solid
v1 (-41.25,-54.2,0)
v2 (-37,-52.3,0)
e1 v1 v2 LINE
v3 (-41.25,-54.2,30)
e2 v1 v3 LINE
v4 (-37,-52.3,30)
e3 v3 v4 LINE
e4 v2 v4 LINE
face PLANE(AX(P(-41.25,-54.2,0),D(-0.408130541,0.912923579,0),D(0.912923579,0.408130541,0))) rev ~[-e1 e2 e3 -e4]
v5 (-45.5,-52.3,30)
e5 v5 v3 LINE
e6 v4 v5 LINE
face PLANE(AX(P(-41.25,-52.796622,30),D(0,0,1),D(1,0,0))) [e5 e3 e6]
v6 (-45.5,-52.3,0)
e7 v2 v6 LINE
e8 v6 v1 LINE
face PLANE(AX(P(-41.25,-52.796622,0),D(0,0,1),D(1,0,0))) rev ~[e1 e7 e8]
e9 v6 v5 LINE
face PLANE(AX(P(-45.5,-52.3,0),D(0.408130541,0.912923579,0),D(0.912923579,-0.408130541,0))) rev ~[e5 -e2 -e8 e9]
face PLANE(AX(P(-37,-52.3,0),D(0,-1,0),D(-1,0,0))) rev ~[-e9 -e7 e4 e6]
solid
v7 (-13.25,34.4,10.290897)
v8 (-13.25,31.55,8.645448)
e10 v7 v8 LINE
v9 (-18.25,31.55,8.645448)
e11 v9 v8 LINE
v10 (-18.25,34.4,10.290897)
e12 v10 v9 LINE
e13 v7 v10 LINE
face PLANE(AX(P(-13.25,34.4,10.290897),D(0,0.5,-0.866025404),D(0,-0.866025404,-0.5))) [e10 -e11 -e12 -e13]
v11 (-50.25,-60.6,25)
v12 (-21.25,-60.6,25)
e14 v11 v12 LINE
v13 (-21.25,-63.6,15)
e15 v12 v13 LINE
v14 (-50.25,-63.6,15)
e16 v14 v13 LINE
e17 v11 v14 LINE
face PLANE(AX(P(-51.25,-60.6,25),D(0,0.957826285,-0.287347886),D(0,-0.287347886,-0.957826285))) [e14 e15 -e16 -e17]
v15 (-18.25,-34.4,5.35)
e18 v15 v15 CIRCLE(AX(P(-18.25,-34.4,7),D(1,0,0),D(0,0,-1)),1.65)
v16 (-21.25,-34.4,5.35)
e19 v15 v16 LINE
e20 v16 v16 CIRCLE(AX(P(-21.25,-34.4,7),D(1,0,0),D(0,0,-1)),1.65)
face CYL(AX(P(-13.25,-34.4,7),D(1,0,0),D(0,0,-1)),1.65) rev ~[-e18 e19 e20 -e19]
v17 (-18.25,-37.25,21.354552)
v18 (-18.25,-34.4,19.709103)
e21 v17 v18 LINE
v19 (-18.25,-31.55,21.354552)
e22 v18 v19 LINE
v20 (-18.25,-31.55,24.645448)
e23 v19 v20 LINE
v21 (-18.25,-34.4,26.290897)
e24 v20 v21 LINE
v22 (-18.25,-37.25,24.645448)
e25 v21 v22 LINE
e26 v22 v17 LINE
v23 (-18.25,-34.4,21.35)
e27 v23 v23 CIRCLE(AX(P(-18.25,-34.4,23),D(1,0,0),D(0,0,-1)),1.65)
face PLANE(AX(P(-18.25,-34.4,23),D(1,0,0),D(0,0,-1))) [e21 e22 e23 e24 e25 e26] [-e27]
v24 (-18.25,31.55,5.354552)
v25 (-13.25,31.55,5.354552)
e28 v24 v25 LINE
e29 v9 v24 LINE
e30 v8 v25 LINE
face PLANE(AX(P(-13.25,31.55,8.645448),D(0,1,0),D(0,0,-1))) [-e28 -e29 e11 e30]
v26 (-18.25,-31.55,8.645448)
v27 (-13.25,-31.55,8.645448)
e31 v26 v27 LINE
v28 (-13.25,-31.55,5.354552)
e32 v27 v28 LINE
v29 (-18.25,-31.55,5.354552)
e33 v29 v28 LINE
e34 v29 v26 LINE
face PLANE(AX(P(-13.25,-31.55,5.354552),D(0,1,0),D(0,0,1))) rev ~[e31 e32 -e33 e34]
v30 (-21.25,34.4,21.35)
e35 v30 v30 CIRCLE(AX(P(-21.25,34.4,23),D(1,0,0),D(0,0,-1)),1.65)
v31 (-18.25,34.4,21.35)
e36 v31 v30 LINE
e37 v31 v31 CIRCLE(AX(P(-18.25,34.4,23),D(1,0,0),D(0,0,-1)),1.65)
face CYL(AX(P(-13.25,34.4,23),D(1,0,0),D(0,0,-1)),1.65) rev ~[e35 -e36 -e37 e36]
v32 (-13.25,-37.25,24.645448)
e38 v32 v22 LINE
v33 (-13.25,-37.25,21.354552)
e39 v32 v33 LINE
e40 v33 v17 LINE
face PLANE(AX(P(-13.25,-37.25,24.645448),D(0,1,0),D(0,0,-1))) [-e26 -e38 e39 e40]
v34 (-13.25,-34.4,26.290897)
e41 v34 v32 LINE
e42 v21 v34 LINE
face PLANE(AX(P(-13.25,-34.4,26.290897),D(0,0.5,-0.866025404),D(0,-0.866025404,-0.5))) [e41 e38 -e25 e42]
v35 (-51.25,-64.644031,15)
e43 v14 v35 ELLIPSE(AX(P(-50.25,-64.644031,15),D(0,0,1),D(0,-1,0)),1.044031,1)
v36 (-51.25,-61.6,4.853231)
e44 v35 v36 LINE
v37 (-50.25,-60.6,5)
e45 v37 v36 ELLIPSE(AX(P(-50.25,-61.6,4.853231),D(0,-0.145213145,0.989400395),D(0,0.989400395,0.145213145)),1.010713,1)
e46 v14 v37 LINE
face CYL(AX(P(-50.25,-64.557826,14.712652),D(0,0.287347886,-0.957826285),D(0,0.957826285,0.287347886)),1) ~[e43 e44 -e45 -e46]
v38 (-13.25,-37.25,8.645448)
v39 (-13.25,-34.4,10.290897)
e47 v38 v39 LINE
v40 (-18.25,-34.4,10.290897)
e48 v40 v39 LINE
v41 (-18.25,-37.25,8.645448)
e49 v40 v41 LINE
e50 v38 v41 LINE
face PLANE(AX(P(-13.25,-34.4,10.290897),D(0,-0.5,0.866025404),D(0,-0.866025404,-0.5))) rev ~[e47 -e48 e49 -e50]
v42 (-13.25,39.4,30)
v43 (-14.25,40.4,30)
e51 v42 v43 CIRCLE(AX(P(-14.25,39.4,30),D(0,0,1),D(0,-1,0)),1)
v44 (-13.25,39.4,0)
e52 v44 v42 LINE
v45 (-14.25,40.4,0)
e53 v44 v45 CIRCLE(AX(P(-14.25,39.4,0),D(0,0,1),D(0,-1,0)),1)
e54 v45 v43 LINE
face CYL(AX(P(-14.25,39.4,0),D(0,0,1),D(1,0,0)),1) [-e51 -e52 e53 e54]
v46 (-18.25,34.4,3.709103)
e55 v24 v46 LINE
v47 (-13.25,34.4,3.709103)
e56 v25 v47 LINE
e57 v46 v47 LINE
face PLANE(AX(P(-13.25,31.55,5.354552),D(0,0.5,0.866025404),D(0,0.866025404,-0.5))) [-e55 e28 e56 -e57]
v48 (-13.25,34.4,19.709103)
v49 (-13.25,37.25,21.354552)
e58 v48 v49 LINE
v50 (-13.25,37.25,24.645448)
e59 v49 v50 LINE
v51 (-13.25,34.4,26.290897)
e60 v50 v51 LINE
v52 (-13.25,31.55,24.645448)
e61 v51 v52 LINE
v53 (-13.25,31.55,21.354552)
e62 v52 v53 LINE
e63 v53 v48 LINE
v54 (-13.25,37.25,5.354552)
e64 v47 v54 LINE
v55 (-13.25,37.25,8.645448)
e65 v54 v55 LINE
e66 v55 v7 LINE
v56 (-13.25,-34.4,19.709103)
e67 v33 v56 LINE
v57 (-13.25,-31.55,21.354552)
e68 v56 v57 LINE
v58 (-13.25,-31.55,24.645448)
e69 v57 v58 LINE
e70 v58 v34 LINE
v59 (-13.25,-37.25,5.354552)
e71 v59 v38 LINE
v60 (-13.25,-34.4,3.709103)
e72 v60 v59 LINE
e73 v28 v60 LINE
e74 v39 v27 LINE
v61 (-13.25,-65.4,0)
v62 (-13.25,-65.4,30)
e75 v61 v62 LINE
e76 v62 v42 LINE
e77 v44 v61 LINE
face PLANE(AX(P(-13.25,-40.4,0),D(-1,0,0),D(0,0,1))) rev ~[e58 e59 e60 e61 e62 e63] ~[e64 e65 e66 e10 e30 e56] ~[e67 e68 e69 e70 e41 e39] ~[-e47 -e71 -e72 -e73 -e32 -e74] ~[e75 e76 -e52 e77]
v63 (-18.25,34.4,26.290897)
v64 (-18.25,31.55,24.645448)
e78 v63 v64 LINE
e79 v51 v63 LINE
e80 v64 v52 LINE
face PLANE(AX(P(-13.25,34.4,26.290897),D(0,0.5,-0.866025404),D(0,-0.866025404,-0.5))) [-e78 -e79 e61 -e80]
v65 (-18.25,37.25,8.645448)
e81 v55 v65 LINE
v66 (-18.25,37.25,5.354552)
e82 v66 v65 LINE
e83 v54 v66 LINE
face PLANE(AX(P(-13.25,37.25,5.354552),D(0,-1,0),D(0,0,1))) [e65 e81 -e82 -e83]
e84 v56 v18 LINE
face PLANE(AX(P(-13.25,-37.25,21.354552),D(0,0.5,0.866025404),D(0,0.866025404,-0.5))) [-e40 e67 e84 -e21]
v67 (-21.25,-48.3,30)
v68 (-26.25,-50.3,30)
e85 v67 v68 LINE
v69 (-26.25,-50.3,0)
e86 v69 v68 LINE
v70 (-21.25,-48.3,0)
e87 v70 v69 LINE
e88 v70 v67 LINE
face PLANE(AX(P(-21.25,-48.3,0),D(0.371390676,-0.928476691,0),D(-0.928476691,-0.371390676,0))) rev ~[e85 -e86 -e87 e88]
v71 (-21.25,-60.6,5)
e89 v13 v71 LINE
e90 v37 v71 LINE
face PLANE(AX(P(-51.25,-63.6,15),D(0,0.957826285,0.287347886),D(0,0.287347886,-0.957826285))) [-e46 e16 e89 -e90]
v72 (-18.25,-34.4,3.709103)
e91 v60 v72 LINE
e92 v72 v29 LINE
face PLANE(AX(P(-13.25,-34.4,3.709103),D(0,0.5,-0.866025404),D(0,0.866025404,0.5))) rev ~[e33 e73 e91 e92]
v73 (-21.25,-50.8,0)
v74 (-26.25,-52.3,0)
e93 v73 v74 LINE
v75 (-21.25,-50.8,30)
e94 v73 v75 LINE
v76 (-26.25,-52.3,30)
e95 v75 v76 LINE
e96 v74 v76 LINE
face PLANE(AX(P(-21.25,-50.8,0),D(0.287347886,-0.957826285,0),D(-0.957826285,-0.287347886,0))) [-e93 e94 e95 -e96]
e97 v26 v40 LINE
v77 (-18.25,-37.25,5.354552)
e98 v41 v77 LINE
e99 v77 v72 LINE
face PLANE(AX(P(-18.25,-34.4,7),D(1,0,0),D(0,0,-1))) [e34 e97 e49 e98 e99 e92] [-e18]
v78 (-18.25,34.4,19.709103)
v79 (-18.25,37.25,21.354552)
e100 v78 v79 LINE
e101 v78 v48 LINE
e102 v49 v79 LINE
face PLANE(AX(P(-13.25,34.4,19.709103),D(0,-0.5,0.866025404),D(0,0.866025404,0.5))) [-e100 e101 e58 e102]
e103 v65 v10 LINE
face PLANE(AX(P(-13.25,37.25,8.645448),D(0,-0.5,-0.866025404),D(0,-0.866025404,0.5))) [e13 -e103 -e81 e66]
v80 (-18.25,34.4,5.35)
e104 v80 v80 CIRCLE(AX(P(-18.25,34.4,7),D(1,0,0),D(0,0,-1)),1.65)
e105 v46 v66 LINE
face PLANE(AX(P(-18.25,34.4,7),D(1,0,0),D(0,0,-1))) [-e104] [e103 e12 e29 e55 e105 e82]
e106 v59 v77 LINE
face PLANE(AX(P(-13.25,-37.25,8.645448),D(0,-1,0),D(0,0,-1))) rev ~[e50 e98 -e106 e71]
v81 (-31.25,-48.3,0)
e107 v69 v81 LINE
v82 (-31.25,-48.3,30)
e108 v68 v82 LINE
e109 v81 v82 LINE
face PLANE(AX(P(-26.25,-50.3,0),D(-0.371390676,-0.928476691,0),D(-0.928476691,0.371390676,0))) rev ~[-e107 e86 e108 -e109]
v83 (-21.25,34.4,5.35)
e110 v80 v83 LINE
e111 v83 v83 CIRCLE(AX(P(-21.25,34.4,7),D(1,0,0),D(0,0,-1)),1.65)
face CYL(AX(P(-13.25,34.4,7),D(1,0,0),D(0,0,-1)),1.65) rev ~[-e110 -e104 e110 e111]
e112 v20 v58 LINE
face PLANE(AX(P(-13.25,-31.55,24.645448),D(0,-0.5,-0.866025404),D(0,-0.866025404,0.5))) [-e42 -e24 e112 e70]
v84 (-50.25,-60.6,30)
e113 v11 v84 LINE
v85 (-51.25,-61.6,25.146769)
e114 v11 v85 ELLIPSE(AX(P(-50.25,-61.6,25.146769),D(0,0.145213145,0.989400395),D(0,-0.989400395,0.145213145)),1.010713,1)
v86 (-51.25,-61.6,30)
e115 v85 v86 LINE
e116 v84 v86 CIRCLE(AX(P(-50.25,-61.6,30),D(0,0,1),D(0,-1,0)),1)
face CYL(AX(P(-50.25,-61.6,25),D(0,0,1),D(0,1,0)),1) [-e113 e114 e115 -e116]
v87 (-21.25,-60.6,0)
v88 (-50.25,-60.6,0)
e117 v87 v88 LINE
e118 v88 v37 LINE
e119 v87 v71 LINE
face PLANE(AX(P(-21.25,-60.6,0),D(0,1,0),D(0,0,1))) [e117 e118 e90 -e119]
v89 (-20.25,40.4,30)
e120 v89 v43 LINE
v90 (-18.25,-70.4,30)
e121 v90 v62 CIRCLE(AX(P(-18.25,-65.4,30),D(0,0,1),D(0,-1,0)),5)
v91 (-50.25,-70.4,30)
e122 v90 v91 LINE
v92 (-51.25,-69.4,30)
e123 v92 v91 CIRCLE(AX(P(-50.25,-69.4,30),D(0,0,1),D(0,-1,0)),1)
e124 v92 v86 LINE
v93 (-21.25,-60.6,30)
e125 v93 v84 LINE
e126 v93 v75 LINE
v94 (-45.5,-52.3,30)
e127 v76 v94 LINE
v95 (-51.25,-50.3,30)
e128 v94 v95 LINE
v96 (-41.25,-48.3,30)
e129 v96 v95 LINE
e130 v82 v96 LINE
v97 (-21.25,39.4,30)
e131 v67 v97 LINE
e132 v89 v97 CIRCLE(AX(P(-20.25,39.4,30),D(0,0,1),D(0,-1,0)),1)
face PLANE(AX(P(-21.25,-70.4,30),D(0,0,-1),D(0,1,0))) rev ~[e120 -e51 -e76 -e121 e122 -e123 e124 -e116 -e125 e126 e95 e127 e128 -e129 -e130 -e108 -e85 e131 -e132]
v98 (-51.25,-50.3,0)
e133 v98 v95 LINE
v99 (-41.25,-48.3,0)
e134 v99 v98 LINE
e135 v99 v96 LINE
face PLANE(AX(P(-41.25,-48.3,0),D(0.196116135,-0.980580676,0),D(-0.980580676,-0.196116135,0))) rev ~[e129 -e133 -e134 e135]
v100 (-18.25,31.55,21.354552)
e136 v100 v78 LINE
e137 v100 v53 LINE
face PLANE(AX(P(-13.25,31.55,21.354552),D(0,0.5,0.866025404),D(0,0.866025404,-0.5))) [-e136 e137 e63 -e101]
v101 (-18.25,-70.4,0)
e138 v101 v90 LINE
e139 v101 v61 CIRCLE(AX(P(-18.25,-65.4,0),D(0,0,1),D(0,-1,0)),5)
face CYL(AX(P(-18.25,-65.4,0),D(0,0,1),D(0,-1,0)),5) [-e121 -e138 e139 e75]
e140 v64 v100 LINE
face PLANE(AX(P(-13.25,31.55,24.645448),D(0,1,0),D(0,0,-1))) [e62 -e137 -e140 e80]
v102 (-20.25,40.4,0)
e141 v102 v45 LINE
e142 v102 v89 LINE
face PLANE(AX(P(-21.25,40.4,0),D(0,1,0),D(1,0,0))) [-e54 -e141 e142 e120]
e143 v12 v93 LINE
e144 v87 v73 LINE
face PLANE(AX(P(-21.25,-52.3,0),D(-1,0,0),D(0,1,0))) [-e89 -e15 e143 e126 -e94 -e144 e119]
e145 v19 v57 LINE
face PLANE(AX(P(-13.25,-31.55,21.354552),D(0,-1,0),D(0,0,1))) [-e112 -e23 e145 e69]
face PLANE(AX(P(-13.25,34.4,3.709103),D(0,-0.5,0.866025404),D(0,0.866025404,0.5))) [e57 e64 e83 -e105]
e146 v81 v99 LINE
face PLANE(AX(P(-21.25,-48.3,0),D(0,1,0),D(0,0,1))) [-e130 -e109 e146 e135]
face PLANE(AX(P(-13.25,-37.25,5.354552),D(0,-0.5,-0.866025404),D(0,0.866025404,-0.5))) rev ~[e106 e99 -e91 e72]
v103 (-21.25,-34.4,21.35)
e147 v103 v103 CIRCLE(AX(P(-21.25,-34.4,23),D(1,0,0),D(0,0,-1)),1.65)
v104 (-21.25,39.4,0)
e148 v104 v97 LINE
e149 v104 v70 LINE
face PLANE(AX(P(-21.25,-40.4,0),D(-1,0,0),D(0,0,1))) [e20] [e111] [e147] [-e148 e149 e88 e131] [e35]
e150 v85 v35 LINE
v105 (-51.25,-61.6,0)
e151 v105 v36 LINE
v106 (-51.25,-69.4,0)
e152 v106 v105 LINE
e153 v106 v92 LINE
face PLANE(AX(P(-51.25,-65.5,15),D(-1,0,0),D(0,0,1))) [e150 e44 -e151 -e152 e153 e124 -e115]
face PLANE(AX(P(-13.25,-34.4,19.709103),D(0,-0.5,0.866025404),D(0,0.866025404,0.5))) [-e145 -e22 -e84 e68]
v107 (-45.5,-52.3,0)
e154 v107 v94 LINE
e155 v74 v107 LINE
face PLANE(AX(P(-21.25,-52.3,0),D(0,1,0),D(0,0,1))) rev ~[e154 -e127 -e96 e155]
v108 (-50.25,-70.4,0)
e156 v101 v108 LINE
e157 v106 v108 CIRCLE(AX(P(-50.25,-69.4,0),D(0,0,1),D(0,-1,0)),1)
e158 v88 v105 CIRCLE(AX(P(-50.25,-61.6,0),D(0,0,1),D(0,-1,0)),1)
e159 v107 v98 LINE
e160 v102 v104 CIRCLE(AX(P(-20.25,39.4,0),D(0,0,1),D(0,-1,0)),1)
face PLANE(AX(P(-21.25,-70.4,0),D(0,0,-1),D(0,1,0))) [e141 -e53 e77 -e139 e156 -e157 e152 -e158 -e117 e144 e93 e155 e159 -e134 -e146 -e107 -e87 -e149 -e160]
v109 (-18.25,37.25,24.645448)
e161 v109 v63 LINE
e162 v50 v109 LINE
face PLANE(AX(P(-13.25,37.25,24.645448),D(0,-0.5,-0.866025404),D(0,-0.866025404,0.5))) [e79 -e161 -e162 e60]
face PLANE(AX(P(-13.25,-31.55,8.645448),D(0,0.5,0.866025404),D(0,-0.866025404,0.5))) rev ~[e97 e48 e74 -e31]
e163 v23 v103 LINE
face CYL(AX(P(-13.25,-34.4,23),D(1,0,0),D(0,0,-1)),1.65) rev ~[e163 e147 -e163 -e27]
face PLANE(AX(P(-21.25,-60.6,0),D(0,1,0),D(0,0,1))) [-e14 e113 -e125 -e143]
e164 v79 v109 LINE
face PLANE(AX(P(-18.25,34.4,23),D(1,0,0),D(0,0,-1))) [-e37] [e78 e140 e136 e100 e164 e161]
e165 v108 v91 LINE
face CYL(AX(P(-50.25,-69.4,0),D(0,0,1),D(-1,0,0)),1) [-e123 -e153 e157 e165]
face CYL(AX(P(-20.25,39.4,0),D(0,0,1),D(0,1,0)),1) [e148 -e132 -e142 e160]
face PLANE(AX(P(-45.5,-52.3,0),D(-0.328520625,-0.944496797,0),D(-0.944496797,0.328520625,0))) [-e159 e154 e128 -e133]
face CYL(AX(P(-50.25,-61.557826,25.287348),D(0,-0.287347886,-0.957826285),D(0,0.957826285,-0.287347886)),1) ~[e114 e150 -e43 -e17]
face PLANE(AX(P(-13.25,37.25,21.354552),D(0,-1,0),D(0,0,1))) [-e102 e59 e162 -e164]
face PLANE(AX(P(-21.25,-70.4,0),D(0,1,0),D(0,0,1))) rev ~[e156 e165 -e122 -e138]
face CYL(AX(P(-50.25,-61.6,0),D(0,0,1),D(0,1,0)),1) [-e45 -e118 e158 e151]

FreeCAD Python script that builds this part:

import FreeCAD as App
import Part
import Sketcher
from FreeCAD import Vector
Q = App.Units.Quantity


def edges_at(feature, points):
    """Names of the edges that pass closest to the given points."""
    edges = feature.Shape.Edges
    near = lambda p: min(range(len(edges)), key=lambda i: edges[i].distToShape(Part.Vertex(*p))[0])
    return sorted({f"Edge{near(p) + 1}" for p in points})

doc = App.newDocument("Part")
body = doc.addObject("PartDesign::Body", "Body")

# Sketch on XY plane
sketch1 = body.newObject("Sketcher::SketchObject", "Sketch")
sketch1.AttachmentSupport = (doc.getObject("XY_Plane"), [""])
sketch1.MapMode = "FlatFace"
sketch1.addGeometry(Part.LineSegment(Vector(-21, 40, 0), Vector(-21, -40, 0)), False)
sketch1.addGeometry(Part.LineSegment(Vector(-21, -40, 0), Vector(-13, -40, 0)), False)
sketch1.addGeometry(Part.LineSegment(Vector(-13, -40, 0), Vector(-13, 40, 0)), False)
sketch1.addGeometry(Part.LineSegment(Vector(-13, 40, 0), Vector(-21, 40, 0)), False)
sketch1.addConstraint(Sketcher.Constraint("Coincident", 0, 2, 1, 1))
sketch1.addConstraint(Sketcher.Constraint("Coincident", 1, 2, 2, 1))
sketch1.addConstraint(Sketcher.Constraint("Coincident", 2, 2, 3, 1))
sketch1.addConstraint(Sketcher.Constraint("Coincident", 3, 2, 0, 1))
sketch1.addConstraint(Sketcher.Constraint("Vertical", 0))
sketch1.addConstraint(Sketcher.Constraint("Horizontal", 1))
sketch1.addConstraint(Sketcher.Constraint("Vertical", 2))
sketch1.addConstraint(Sketcher.Constraint("Horizontal", 3))
sketch1.addConstraint(Sketcher.Constraint("DistanceX", 1, 1, 1, 2, Q("8 mm")))
sketch1.addConstraint(Sketcher.Constraint("DistanceY", 0, 2, 0, 1, Q("80.8 mm")))
sketch1.addConstraint(Sketcher.Constraint("DistanceY", 0, 2, -1, 1, Q("40.4 mm")))
sketch1.addConstraint(Sketcher.Constraint("DistanceX", 0, 2, -1, 1, Q("21.25 mm")))
pad1 = body.newObject("PartDesign::Pad", "Pad")
pad1.Profile = sketch1
pad1.Length = 30

# Sketch on YZ plane
sketch2 = body.newObject("Sketcher::SketchObject", "Sketch001")
sketch2.AttachmentSupport = (doc.getObject("YZ_Plane"), [""])
sketch2.MapMode = "FlatFace"
sketch2.AttachmentOffset = App.Placement(Vector(0, 0, -13.25), App.Rotation())
sketch2.addGeometry(Part.Circle(Vector(34.4, 7, 0), Vector(0, 0, 1), 1.6), False)
sketch2.addGeometry(Part.Circle(Vector(34.4, 23, 0), Vector(0, 0, 1), 1.6), False)
sketch2.addGeometry(Part.Circle(Vector(-34.4, 23, 0), Vector(0, 0, 1), 1.6), False)
sketch2.addGeometry(Part.Circle(Vector(-34.4, 7, 0), Vector(0, 0, 1), 1.6), False)
sketch2.addConstraint(Sketcher.Constraint("Equal", 0, 1))
sketch2.addConstraint(Sketcher.Constraint("Equal", 1, 2))
sketch2.addConstraint(Sketcher.Constraint("Equal", 2, 3))
sketch2.addConstraint(Sketcher.Constraint("Symmetric", 1, 3, 2, 3, -2))
sketch2.addConstraint(Sketcher.Constraint("Symmetric", 0, 3, 3, 3, -2))
sketch2.addConstraint(Sketcher.Constraint("Vertical", 0, 3, 1, 3))
sketch2.addConstraint(Sketcher.Constraint("Diameter", 0, Q("3.3 mm")))
sketch2.addConstraint(Sketcher.Constraint("DistanceY", -1, 1, 0, 3, Q("7 mm")))
sketch2.addConstraint(Sketcher.Constraint("DistanceY", -1, 1, 1, 3, Q("23 mm")))
sketch2.addConstraint(Sketcher.Constraint("DistanceX", -1, 1, 0, 3, Q("34.4 mm")))
pocket1 = body.newObject("PartDesign::Pocket", "Pocket")
pocket1.Profile = sketch2
pocket1.Length = 30

# Sketch on YZ plane
sketch3 = body.newObject("Sketcher::SketchObject", "Sketch002")
sketch3.AttachmentSupport = (doc.getObject("YZ_Plane"), [""])
sketch3.MapMode = "FlatFace"
sketch3.AttachmentOffset = App.Placement(Vector(0, 0, -13.25), App.Rotation())
sketch3.addGeometry(Part.LineSegment(Vector(34.4, 26.3, 0), Vector(31.6, 24.6, 0)), False)
sketch3.addGeometry(Part.LineSegment(Vector(31.6, 24.6, 0), Vector(31.6, 21.4, 0)), False)
sketch3.addGeometry(Part.LineSegment(Vector(31.6, 21.4, 0), Vector(34.4, 19.7, 0)), False)
sketch3.addGeometry(Part.LineSegment(Vector(34.4, 19.7, 0), Vector(37.2, 21.4, 0)), False)
sketch3.addGeometry(Part.LineSegment(Vector(37.2, 21.4, 0), Vector(37.2, 24.6, 0)), False)
sketch3.addGeometry(Part.LineSegment(Vector(37.2, 24.6, 0), Vector(34.4, 26.3, 0)), False)
sketch3.addGeometry(Part.LineSegment(Vector(34.4, 10.3, 0), Vector(31.6, 8.6, 0)), False)
sketch3.addGeometry(Part.LineSegment(Vector(31.6, 8.6, 0), Vector(31.6, 5.4, 0)), False)
sketch3.addGeometry(Part.LineSegment(Vector(31.6, 5.4, 0), Vector(34.4, 3.7, 0)), False)
sketch3.addGeometry(Part.LineSegment(Vector(34.4, 3.7, 0), Vector(37.2, 5.4, 0)), False)
sketch3.addGeometry(Part.LineSegment(Vector(37.2, 5.4, 0), Vector(37.2, 8.6, 0)), False)
sketch3.addGeometry(Part.LineSegment(Vector(37.2, 8.6, 0), Vector(34.4, 10.3, 0)), False)
sketch3.addGeometry(Part.LineSegment(Vector(-34.4, 19.7, 0), Vector(-31.6, 21.4, 0)), False)
sketch3.addGeometry(Part.LineSegment(Vector(-31.6, 21.4, 0), Vector(-31.6, 24.6, 0)), False)
sketch3.addGeometry(Part.LineSegment(Vector(-31.6, 24.6, 0), Vector(-34.4, 26.3, 0)), False)
sketch3.addGeometry(Part.LineSegment(Vector(-34.4, 26.3, 0), Vector(-37.2, 24.6, 0)), False)
sketch3.addGeometry(Part.LineSegment(Vector(-37.2, 24.6, 0), Vector(-37.2, 21.4, 0)), False)
sketch3.addGeometry(Part.LineSegment(Vector(-37.2, 21.4, 0), Vector(-34.4, 19.7, 0)), False)
sketch3.addGeometry(Part.LineSegment(Vector(-34.4, 3.7, 0), Vector(-31.6, 5.4, 0)), False)
sketch3.addGeometry(Part.LineSegment(Vector(-31.6, 5.4, 0), Vector(-31.6, 8.6, 0)), False)
sketch3.addGeometry(Part.LineSegment(Vector(-31.6, 8.6, 0), Vector(-34.4, 10.3, 0)), False)
sketch3.addGeometry(Part.LineSegment(Vector(-34.4, 10.3, 0), Vector(-37.2, 8.6, 0)), False)
sketch3.addGeometry(Part.LineSegment(Vector(-37.2, 8.6, 0), Vector(-37.2, 5.4, 0)), False)
sketch3.addGeometry(Part.LineSegment(Vector(-37.2, 5.4, 0), Vector(-34.4, 3.7, 0)), False)
sketch3.addConstraint(Sketcher.Constraint("Coincident", 0, 2, 1, 1))
sketch3.addConstraint(Sketcher.Constraint("Coincident", 1, 2, 2, 1))
sketch3.addConstraint(Sketcher.Constraint("Coincident", 2, 2, 3, 1))
sketch3.addConstraint(Sketcher.Constraint("Coincident", 3, 2, 4, 1))
sketch3.addConstraint(Sketcher.Constraint("Coincident", 4, 2, 5, 1))
sketch3.addConstraint(Sketcher.Constraint("Coincident", 5, 2, 0, 1))
sketch3.addConstraint(Sketcher.Constraint("Coincident", 6, 2, 7, 1))
sketch3.addConstraint(Sketcher.Constraint("Coincident", 7, 2, 8, 1))
sketch3.addConstraint(Sketcher.Constraint("Coincident", 8, 2, 9, 1))
sketch3.addConstraint(Sketcher.Constraint("Coincident", 9, 2, 10, 1))
sketch3.addConstraint(Sketcher.Constraint("Coincident", 10, 2, 11, 1))
sketch3.addConstraint(Sketcher.Constraint("Coincident", 11, 2, 6, 1))
sketch3.addConstraint(Sketcher.Constraint("Coincident", 12, 2, 13, 1))
sketch3.addConstraint(Sketcher.Constraint("Coincident", 13, 2, 14, 1))
sketch3.addConstraint(Sketcher.Constraint("Coincident", 14, 2, 15, 1))
sketch3.addConstraint(Sketcher.Constraint("Coincident", 15, 2, 16, 1))
sketch3.addConstraint(Sketcher.Constraint("Coincident", 16, 2, 17, 1))
sketch3.addConstraint(Sketcher.Constraint("Coincident", 17, 2, 12, 1))
sketch3.addConstraint(Sketcher.Constraint("Coincident", 18, 2, 19, 1))
sketch3.addConstraint(Sketcher.Constraint("Coincident", 19, 2, 20, 1))
sketch3.addConstraint(Sketcher.Constraint("Coincident", 20, 2, 21, 1))
sketch3.addConstraint(Sketcher.Constraint("Coincident", 21, 2, 22, 1))
sketch3.addConstraint(Sketcher.Constraint("Coincident", 22, 2, 23, 1))
sketch3.addConstraint(Sketcher.Constraint("Coincident", 23, 2, 18, 1))
sketch3.addConstraint(Sketcher.Constraint("Vertical", 1))
sketch3.addConstraint(Sketcher.Constraint("Vertical", 4))
sketch3.addConstraint(Sketcher.Constraint("Vertical", 7))
sketch3.addConstraint(Sketcher.Constraint("Vertical", 10))
sketch3.addConstraint(Sketcher.Constraint("Vertical", 13))
sketch3.addConstraint(Sketcher.Constraint("Vertical", 16))
sketch3.addConstraint(Sketcher.Constraint("Vertical", 19))
sketch3.addConstraint(Sketcher.Constraint("Vertical", 22))
sketch3.addConstraint(Sketcher.Constraint("Symmetric", 1, 2, 12, 2, -2))
sketch3.addConstraint(Sketcher.Constraint("Symmetric", 5, 2, 14, 2, -2))
sketch3.addConstraint(Sketcher.Constraint("Symmetric", 4, 2, 15, 2, -2))
sketch3.addConstraint(Sketcher.Constraint("Symmetric", 2, 2, 17, 2, -2))
sketch3.addConstraint(Sketcher.Constraint("Symmetric", 7, 2, 18, 2, -2))
sketch3.addConstraint(Sketcher.Constraint("Symmetric", 11, 2, 20, 2, -2))
sketch3.addConstraint(Sketcher.Constraint("Symmetric", 10, 2, 21, 2, -2))
sketch3.addConstraint(Sketcher.Constraint("Symmetric", 8, 2, 23, 2, -2))
sketch3.addConstraint(Sketcher.Constraint("Parallel", 0, 3))
sketch3.addConstraint(Sketcher.Constraint("Parallel", 2, 5))
sketch3.addConstraint(Sketcher.Constraint("Parallel", 3, 6))
sketch3.addConstraint(Sketcher.Constraint("Parallel", 5, 8))
sketch3.addConstraint(Sketcher.Constraint("Parallel", 6, 9))
sketch3.addConstraint(Sketcher.Constraint("Parallel", 8, 11))
sketch3.addConstraint(Sketcher.Constraint("Parallel", 9, 12))
sketch3.addConstraint(Sketcher.Constraint("Parallel", 11, 14))
sketch3.addConstraint(Sketcher.Constraint("Parallel", 14, 17))
sketch3.addConstraint(Sketcher.Constraint("Parallel", 17, 20))
sketch3.addConstraint(Sketcher.Constraint("Parallel", 20, 23))
sketch3.addConstraint(Sketcher.Constraint("Horizontal", 1, 2, 3, 2))
sketch3.addConstraint(Sketcher.Constraint("Horizontal", 0, 2, 4, 2))
sketch3.addConstraint(Sketcher.Constraint("Horizontal", 7, 2, 9, 2))
sketch3.addConstraint(Sketcher.Constraint("Horizontal", 6, 2, 10, 2))
sketch3.addConstraint(Sketcher.Constraint("Vertical", 1, 2, 6, 2))
sketch3.addConstraint(Sketcher.Constraint("Vertical", 5, 2, 8, 2))
sketch3.addConstraint(Sketcher.Constraint("Equal", 4, 7))
sketch3.addConstraint(Sketcher.Constraint("Angle", 0, Q("-150 deg")))
sketch3.addConstraint(Sketcher.Constraint("DistanceY", 6, 2, 0, 2, Q("16 mm")))
sketch3.addConstraint(Sketcher.Constraint("DistanceX", -1, 1, 2, 2, Q("34.4 mm")))
sketch3.addConstraint(Sketcher.Constraint("DistanceX", 1, 2, 3, 2, Q("5.7 mm")))
sketch3.addConstraint(Sketcher.Constraint("DistanceY", 1, 2, 1, 1, Q("3.290897 mm")))
sketch3.addConstraint(Sketcher.Constraint("DistanceY", -1, 1, 0, 2, Q("24.645448 mm")))
pocket2 = body.newObject("PartDesign::Pocket", "Pocket001")
pocket2.Profile = sketch3
pocket2.Length = 10
pocket2.Midplane = True

# Sketch on XZ plane
sketch4 = body.newObject("Sketcher::SketchObject", "Sketch003")
sketch4.AttachmentSupport = (doc.getObject("XZ_Plane"), [""])
sketch4.MapMode = "FlatFace"
sketch4.AttachmentOffset = App.Placement(Vector(0, 0, 40.4), App.Rotation())
sketch4.addGeometry(Part.LineSegment(Vector(-21, 30, 0), Vector(-21, 0, 0)), False)
sketch4.addGeometry(Part.LineSegment(Vector(-21, 0, 0), Vector(-13, 0, 0)), False)
sketch4.addGeometry(Part.LineSegment(Vector(-13, 0, 0), Vector(-13, 30, 0)), False)
sketch4.addGeometry(Part.LineSegment(Vector(-13, 30, 0), Vector(-21, 30, 0)), False)
sketch4.addConstraint(Sketcher.Constraint("Coincident", 0, 2, 1, 1))
sketch4.addConstraint(Sketcher.Constraint("Coincident", 1, 2, 2, 1))
sketch4.addConstraint(Sketcher.Constraint("Coincident", 2, 2, 3, 1))
sketch4.addConstraint(Sketcher.Constraint("Coincident", 3, 2, 0, 1))
sketch4.addConstraint(Sketcher.Constraint("Vertical", 0))
sketch4.addConstraint(Sketcher.Constraint("Horizontal", 1))
sketch4.addConstraint(Sketcher.Constraint("Vertical", 2))
sketch4.addConstraint(Sketcher.Constraint("Horizontal", 3))
sketch4.addConstraint(Sketcher.Constraint("PointOnObject", 0, 2, -1))
sketch4.addConstraint(Sketcher.Constraint("DistanceX", 1, 1, 1, 2, Q("8 mm")))
sketch4.addConstraint(Sketcher.Constraint("DistanceY", 0, 2, 0, 1, Q("30 mm")))
sketch4.addConstraint(Sketcher.Constraint("DistanceX", 0, 2, -1, 1, Q("21.25 mm")))
pad2 = body.newObject("PartDesign::Pad", "Pad001")
pad2.Profile = sketch4
pad2.Length = 30

# Sketch on YZ plane
sketch5 = body.newObject("Sketcher::SketchObject", "Sketch004")
sketch5.AttachmentSupport = (doc.getObject("YZ_Plane"), [""])
sketch5.MapMode = "FlatFace"
sketch5.AttachmentOffset = App.Placement(Vector(0, 0, -21.25), App.Rotation())
sketch5.addGeometry(Part.LineSegment(Vector(-61, 0, 0), Vector(-70, 0, 0)), False)
sketch5.addGeometry(Part.LineSegment(Vector(-70, 0, 0), Vector(-70, 30, 0)), False)
sketch5.addGeometry(Part.LineSegment(Vector(-70, 30, 0), Vector(-61, 30, 0)), False)
sketch5.addGeometry(Part.LineSegment(Vector(-61, 30, 0), Vector(-61, 0, 0)), False)
sketch5.addConstraint(Sketcher.Constraint("Coincident", 0, 2, 1, 1))
sketch5.addConstraint(Sketcher.Constraint("Coincident", 1, 2, 2, 1))
sketch5.addConstraint(Sketcher.Constraint("Coincident", 2, 2, 3, 1))
sketch5.addConstraint(Sketcher.Constraint("Coincident", 3, 2, 0, 1))
sketch5.addConstraint(Sketcher.Constraint("Horizontal", 0))
sketch5.addConstraint(Sketcher.Constraint("Vertical", 1))
sketch5.addConstraint(Sketcher.Constraint("Horizontal", 2))
sketch5.addConstraint(Sketcher.Constraint("Vertical", 3))
sketch5.addConstraint(Sketcher.Constraint("PointOnObject", 0, 2, -1))
sketch5.addConstraint(Sketcher.Constraint("DistanceY", 1, 1, 1, 2, Q("30 mm")))
sketch5.addConstraint(Sketcher.Constraint("DistanceX", 0, 2, 0, 1, Q("9.8 mm")))
sketch5.addConstraint(Sketcher.Constraint("DistanceX", 0, 2, -1, 1, Q("70.4 mm")))
pad3 = body.newObject("PartDesign::Pad", "Pad002")
pad3.Profile = sketch5
pad3.Length = 30
pad3.Reversed = True

# Sketch on YZ plane
sketch6 = body.newObject("Sketcher::SketchObject", "Sketch005")
sketch6.AttachmentSupport = (doc.getObject("YZ_Plane"), [""])
sketch6.MapMode = "FlatFace"
sketch6.AttachmentOffset = App.Placement(Vector(0, 0, -21.25), App.Rotation())
sketch6.addGeometry(Part.LineSegment(Vector(-48.3, 0, 0), Vector(-52.3, 0, 0)), False)
sketch6.addGeometry(Part.LineSegment(Vector(-52.3, 0, 0), Vector(-52.3, 30, 0)), False)
sketch6.addGeometry(Part.LineSegment(Vector(-52.3, 30, 0), Vector(-48.3, 30, 0)), False)
sketch6.addGeometry(Part.LineSegment(Vector(-48.3, 30, 0), Vector(-48.3, 0, 0)), False)
sketch6.addConstraint(Sketcher.Constraint("Coincident", 0, 2, 1, 1))
sketch6.addConstraint(Sketcher.Constraint("Coincident", 1, 2, 2, 1))
sketch6.addConstraint(Sketcher.Constraint("Coincident", 2, 2, 3, 1))
sketch6.addConstraint(Sketcher.Constraint("Coincident", 3, 2, 0, 1))
sketch6.addConstraint(Sketcher.Constraint("Horizontal", 0))
sketch6.addConstraint(Sketcher.Constraint("Vertical", 1))
sketch6.addConstraint(Sketcher.Constraint("Horizontal", 2))
sketch6.addConstraint(Sketcher.Constraint("Vertical", 3))
sketch6.addConstraint(Sketcher.Constraint("PointOnObject", 0, 2, -1))
sketch6.addConstraint(Sketcher.Constraint("DistanceX", 0, 2, 0, 1, Q("4 mm")))
sketch6.addConstraint(Sketcher.Constraint("DistanceY", 1, 1, 1, 2, Q("30 mm")))
sketch6.addConstraint(Sketcher.Constraint("DistanceX", 0, 2, -1, 1, Q("52.3 mm")))
pad4 = body.newObject("PartDesign::Pad", "Pad003")
pad4.Profile = sketch6
pad4.Length = 30
pad4.Reversed = True

# Sketch on XY plane
sketch7 = body.newObject("Sketcher::SketchObject", "Sketch006")
sketch7.AttachmentSupport = (doc.getObject("XY_Plane"), [""])
sketch7.MapMode = "FlatFace"
sketch7.addGeometry(Part.LineSegment(Vector(-51.2, -48.3, 0), Vector(-41.2, -48.3, 0)), False)
sketch7.addGeometry(Part.LineSegment(Vector(-41.2, -48.3, 0), Vector(-51.2, -50.3, 0)), False)
sketch7.addGeometry(Part.LineSegment(Vector(-51.2, -50.3, 0), Vector(-51.2, -48.3, 0)), False)
sketch7.addGeometry(Part.LineSegment(Vector(-26.2, -50.3, 0), Vector(-31.2, -48.3, 0)), False)
sketch7.addGeometry(Part.LineSegment(Vector(-31.2, -48.3, 0), Vector(-21.2, -48.3, 0)), False)
sketch7.addGeometry(Part.LineSegment(Vector(-21.2, -48.3, 0), Vector(-26.2, -50.3, 0)), False)
sketch7.addConstraint(Sketcher.Constraint("Coincident", 0, 2, 1, 1))
sketch7.addConstraint(Sketcher.Constraint("Coincident", 1, 2, 2, 1))
sketch7.addConstraint(Sketcher.Constraint("Coincident", 2, 2, 0, 1))
sketch7.addConstraint(Sketcher.Constraint("Coincident", 3, 2, 4, 1))
sketch7.addConstraint(Sketcher.Constraint("Coincident", 4, 2, 5, 1))
sketch7.addConstraint(Sketcher.Constraint("Coincident", 5, 2, 3, 1))
sketch7.addConstraint(Sketcher.Constraint("Horizontal", 0))
sketch7.addConstraint(Sketcher.Constraint("Vertical", 2))
sketch7.addConstraint(Sketcher.Constraint("Horizontal", 4))
sketch7.addConstraint(Sketcher.Constraint("Horizontal", 2, 2, 3, 2))
sketch7.addConstraint(Sketcher.Constraint("Horizontal", 1, 2, 5, 2))
sketch7.addConstraint(Sketcher.Constraint("Equal", 0, 4))
sketch7.addConstraint(Sketcher.Constraint("Equal", 3, 5))
sketch7.addConstraint(Sketcher.Constraint("DistanceX", 0, 1, 0, 2, Q("10 mm")))
sketch7.addConstraint(Sketcher.Constraint("DistanceY", 2, 1, 2, 2, Q("2 mm")))
sketch7.addConstraint(Sketcher.Constraint("DistanceX", 0, 2, 3, 2, Q("10 mm")))
sketch7.addConstraint(Sketcher.Constraint("DistanceY", 0, 2, -1, 1, Q("48.3 mm")))
sketch7.addConstraint(Sketcher.Constraint("DistanceX", 0, 2, -1, 1, Q("41.25 mm")))
pocket3 = body.newObject("PartDesign::Pocket", "Pocket002")
pocket3.Profile = sketch7
pocket3.Length = 30
pocket3.Reversed = True

# Sketch on YZ plane
sketch8 = body.newObject("Sketcher::SketchObject", "Sketch007")
sketch8.AttachmentSupport = (doc.getObject("YZ_Plane"), [""])
sketch8.MapMode = "FlatFace"
sketch8.AttachmentOffset = App.Placement(Vector(0, 0, -51.25), App.Rotation())
sketch8.addGeometry(Part.LineSegment(Vector(-61, 25, 0), Vector(-61, 5, 0)), False)
sketch8.addGeometry(Part.LineSegment(Vector(-61, 5, 0), Vector(-64, 15, 0)), False)
sketch8.addGeometry(Part.LineSegment(Vector(-64, 15, 0), Vector(-61, 25, 0)), False)
sketch8.addConstraint(Sketcher.Constraint("Coincident", 0, 2, 1, 1))
sketch8.addConstraint(Sketcher.Constraint("Coincident", 1, 2, 2, 1))
sketch8.addConstraint(Sketcher.Constraint("Coincident", 2, 2, 0, 1))
sketch8.addConstraint(Sketcher.Constraint("Vertical", 0))
sketch8.addConstraint(Sketcher.Constraint("Equal", 1, 2))
sketch8.addConstraint(Sketcher.Constraint("DistanceY", 0, 2, 0, 1, Q("20 mm")))
sketch8.addConstraint(Sketcher.Constraint("DistanceY", -1, 1, 0, 2, Q("5 mm")))
sketch8.addConstraint(Sketcher.Constraint("DistanceX", 1, 2, 0, 2, Q("3 mm")))
sketch8.addConstraint(Sketcher.Constraint("DistanceX", 0, 2, -1, 1, Q("60.6 mm")))
pocket4 = body.newObject("PartDesign::Pocket", "Pocket003")
pocket4.Profile = sketch8
pocket4.Length = 30
pocket4.Reversed = True

# Sketch on XY plane
sketch9 = body.newObject("Sketcher::SketchObject", "Sketch008")
sketch9.AttachmentSupport = (doc.getObject("XY_Plane"), [""])
sketch9.MapMode = "FlatFace"
sketch9.addGeometry(Part.LineSegment(Vector(-51.2, -50.3, 0), Vector(-45.5, -52.3, 0)), False)
sketch9.addGeometry(Part.LineSegment(Vector(-45.5, -52.3, 0), Vector(-51.2, -52.3, 0)), False)
sketch9.addGeometry(Part.LineSegment(Vector(-51.2, -52.3, 0), Vector(-51.2, -50.3, 0)), False)
sketch9.addGeometry(Part.LineSegment(Vector(-21.2, -50.8, 0), Vector(-21.2, -52.3, 0)), False)
sketch9.addGeometry(Part.LineSegment(Vector(-21.2, -52.3, 0), Vector(-26.2, -52.3, 0)), False)
sketch9.addGeometry(Part.LineSegment(Vector(-26.2, -52.3, 0), Vector(-21.2, -50.8, 0)), False)
sketch9.addConstraint(Sketcher.Constraint("Coincident", 0, 2, 1, 1))
sketch9.addConstraint(Sketcher.Constraint("Coincident", 1, 2, 2, 1))
sketch9.addConstraint(Sketcher.Constraint("Coincident", 2, 2, 0, 1))
sketch9.addConstraint(Sketcher.Constraint("Coincident", 3, 2, 4, 1))
sketch9.addConstraint(Sketcher.Constraint("Coincident", 4, 2, 5, 1))
sketch9.addConstraint(Sketcher.Constraint("Coincident", 5, 2, 3, 1))
sketch9.addConstraint(Sketcher.Constraint("Horizontal", 1))
sketch9.addConstraint(Sketcher.Constraint("Vertical", 2))
sketch9.addConstraint(Sketcher.Constraint("Vertical", 3))
sketch9.addConstraint(Sketcher.Constraint("Horizontal", 4))
sketch9.addConstraint(Sketcher.Constraint("Horizontal", 1, 2, 3, 2))
sketch9.addConstraint(Sketcher.Constraint("DistanceX", 4, 2, 4, 1, Q("5 mm")))
sketch9.addConstraint(Sketcher.Constraint("DistanceY", 2, 1, 2, 2, Q("2 mm")))
sketch9.addConstraint(Sketcher.Constraint("DistanceY", 3, 2, 3, 1, Q("1.5 mm")))
sketch9.addConstraint(Sketcher.Constraint("DistanceX", 1, 2, 3, 2, Q("30 mm")))
sketch9.addConstraint(Sketcher.Constraint("DistanceX", 1, 2, 1, 1, Q("5.75 mm")))
sketch9.addConstraint(Sketcher.Constraint("DistanceX", 0, 2, -1, 1, Q("45.5 mm")))
sketch9.addConstraint(Sketcher.Constraint("DistanceY", 0, 2, -1, 1, Q("52.3 mm")))
pocket5 = body.newObject("PartDesign::Pocket", "Pocket004")
pocket5.Profile = sketch9
pocket5.Length = 30
pocket5.Reversed = True
doc.recompute()

fillet = body.newObject("PartDesign::Fillet", "Fillet")
fillet.Base = (pocket5, edges_at(pocket5, [
    (-51.25, -70.4, 15),
    (-51.25, -60.6, 27.5),
    (-51.25, -60.6, 2.5),
    (-51.25, -62.1, 20),
    (-51.25, -62.1, 10),
]))
fillet.Radius = 1
doc.recompute()

fillet2 = body.newObject("PartDesign::Fillet", "Fillet001")
fillet2.Base = (fillet, edges_at(fillet, [(-13.25, -70.4, 15)]))
fillet2.Radius = 5
doc.recompute()

fillet3 = body.newObject("PartDesign::Fillet", "Fillet002")
fillet3.Base = (fillet2, edges_at(fillet2, [(-21.25, 40.4, 15), (-13.25, 40.4, 15)]))
fillet3.Radius = 1
body2 = doc.addObject("PartDesign::Body", "Body001")

# Sketch on XY plane
sketch10 = body2.newObject("Sketcher::SketchObject", "Sketch009")
sketch10.AttachmentSupport = (doc.getObject("XY_Plane001"), [""])
sketch10.MapMode = "FlatFace"
sketch10.addGeometry(Part.LineSegment(Vector(-45.5, -52.3, 0), Vector(-37, -52.3, 0)), False)
sketch10.addGeometry(Part.LineSegment(Vector(-37, -52.3, 0), Vector(-41.2, -54.2, 0)), False)
sketch10.addGeometry(Part.LineSegment(Vector(-41.2, -54.2, 0), Vector(-45.5, -52.3, 0)), False)
sketch10.addConstraint(Sketcher.Constraint("Coincident", 0, 2, 1, 1))
sketch10.addConstraint(Sketcher.Constraint("Coincident", 1, 2, 2, 1))
sketch10.addConstraint(Sketcher.Constraint("Coincident", 2, 2, 0, 1))
sketch10.addConstraint(Sketcher.Constraint("Horizontal", 0))
sketch10.addConstraint(Sketcher.Constraint("Equal", 1, 2))
sketch10.addConstraint(Sketcher.Constraint("DistanceX", 0, 1, 0, 2, Q("8.5 mm")))
sketch10.addConstraint(Sketcher.Constraint("DistanceX", 0, 2, -1, 1, Q("37 mm")))
sketch10.addConstraint(Sketcher.Constraint("DistanceY", 0, 2, -1, 1, Q("52.3 mm")))
sketch10.addConstraint(Sketcher.Constraint("DistanceY", 1, 2, -1, 1, Q("54.2 mm")))
pad5 = body2.newObject("PartDesign::Pad", "Pad004")
pad5.Profile = sketch10
pad5.Length = 30

doc.recompute()
